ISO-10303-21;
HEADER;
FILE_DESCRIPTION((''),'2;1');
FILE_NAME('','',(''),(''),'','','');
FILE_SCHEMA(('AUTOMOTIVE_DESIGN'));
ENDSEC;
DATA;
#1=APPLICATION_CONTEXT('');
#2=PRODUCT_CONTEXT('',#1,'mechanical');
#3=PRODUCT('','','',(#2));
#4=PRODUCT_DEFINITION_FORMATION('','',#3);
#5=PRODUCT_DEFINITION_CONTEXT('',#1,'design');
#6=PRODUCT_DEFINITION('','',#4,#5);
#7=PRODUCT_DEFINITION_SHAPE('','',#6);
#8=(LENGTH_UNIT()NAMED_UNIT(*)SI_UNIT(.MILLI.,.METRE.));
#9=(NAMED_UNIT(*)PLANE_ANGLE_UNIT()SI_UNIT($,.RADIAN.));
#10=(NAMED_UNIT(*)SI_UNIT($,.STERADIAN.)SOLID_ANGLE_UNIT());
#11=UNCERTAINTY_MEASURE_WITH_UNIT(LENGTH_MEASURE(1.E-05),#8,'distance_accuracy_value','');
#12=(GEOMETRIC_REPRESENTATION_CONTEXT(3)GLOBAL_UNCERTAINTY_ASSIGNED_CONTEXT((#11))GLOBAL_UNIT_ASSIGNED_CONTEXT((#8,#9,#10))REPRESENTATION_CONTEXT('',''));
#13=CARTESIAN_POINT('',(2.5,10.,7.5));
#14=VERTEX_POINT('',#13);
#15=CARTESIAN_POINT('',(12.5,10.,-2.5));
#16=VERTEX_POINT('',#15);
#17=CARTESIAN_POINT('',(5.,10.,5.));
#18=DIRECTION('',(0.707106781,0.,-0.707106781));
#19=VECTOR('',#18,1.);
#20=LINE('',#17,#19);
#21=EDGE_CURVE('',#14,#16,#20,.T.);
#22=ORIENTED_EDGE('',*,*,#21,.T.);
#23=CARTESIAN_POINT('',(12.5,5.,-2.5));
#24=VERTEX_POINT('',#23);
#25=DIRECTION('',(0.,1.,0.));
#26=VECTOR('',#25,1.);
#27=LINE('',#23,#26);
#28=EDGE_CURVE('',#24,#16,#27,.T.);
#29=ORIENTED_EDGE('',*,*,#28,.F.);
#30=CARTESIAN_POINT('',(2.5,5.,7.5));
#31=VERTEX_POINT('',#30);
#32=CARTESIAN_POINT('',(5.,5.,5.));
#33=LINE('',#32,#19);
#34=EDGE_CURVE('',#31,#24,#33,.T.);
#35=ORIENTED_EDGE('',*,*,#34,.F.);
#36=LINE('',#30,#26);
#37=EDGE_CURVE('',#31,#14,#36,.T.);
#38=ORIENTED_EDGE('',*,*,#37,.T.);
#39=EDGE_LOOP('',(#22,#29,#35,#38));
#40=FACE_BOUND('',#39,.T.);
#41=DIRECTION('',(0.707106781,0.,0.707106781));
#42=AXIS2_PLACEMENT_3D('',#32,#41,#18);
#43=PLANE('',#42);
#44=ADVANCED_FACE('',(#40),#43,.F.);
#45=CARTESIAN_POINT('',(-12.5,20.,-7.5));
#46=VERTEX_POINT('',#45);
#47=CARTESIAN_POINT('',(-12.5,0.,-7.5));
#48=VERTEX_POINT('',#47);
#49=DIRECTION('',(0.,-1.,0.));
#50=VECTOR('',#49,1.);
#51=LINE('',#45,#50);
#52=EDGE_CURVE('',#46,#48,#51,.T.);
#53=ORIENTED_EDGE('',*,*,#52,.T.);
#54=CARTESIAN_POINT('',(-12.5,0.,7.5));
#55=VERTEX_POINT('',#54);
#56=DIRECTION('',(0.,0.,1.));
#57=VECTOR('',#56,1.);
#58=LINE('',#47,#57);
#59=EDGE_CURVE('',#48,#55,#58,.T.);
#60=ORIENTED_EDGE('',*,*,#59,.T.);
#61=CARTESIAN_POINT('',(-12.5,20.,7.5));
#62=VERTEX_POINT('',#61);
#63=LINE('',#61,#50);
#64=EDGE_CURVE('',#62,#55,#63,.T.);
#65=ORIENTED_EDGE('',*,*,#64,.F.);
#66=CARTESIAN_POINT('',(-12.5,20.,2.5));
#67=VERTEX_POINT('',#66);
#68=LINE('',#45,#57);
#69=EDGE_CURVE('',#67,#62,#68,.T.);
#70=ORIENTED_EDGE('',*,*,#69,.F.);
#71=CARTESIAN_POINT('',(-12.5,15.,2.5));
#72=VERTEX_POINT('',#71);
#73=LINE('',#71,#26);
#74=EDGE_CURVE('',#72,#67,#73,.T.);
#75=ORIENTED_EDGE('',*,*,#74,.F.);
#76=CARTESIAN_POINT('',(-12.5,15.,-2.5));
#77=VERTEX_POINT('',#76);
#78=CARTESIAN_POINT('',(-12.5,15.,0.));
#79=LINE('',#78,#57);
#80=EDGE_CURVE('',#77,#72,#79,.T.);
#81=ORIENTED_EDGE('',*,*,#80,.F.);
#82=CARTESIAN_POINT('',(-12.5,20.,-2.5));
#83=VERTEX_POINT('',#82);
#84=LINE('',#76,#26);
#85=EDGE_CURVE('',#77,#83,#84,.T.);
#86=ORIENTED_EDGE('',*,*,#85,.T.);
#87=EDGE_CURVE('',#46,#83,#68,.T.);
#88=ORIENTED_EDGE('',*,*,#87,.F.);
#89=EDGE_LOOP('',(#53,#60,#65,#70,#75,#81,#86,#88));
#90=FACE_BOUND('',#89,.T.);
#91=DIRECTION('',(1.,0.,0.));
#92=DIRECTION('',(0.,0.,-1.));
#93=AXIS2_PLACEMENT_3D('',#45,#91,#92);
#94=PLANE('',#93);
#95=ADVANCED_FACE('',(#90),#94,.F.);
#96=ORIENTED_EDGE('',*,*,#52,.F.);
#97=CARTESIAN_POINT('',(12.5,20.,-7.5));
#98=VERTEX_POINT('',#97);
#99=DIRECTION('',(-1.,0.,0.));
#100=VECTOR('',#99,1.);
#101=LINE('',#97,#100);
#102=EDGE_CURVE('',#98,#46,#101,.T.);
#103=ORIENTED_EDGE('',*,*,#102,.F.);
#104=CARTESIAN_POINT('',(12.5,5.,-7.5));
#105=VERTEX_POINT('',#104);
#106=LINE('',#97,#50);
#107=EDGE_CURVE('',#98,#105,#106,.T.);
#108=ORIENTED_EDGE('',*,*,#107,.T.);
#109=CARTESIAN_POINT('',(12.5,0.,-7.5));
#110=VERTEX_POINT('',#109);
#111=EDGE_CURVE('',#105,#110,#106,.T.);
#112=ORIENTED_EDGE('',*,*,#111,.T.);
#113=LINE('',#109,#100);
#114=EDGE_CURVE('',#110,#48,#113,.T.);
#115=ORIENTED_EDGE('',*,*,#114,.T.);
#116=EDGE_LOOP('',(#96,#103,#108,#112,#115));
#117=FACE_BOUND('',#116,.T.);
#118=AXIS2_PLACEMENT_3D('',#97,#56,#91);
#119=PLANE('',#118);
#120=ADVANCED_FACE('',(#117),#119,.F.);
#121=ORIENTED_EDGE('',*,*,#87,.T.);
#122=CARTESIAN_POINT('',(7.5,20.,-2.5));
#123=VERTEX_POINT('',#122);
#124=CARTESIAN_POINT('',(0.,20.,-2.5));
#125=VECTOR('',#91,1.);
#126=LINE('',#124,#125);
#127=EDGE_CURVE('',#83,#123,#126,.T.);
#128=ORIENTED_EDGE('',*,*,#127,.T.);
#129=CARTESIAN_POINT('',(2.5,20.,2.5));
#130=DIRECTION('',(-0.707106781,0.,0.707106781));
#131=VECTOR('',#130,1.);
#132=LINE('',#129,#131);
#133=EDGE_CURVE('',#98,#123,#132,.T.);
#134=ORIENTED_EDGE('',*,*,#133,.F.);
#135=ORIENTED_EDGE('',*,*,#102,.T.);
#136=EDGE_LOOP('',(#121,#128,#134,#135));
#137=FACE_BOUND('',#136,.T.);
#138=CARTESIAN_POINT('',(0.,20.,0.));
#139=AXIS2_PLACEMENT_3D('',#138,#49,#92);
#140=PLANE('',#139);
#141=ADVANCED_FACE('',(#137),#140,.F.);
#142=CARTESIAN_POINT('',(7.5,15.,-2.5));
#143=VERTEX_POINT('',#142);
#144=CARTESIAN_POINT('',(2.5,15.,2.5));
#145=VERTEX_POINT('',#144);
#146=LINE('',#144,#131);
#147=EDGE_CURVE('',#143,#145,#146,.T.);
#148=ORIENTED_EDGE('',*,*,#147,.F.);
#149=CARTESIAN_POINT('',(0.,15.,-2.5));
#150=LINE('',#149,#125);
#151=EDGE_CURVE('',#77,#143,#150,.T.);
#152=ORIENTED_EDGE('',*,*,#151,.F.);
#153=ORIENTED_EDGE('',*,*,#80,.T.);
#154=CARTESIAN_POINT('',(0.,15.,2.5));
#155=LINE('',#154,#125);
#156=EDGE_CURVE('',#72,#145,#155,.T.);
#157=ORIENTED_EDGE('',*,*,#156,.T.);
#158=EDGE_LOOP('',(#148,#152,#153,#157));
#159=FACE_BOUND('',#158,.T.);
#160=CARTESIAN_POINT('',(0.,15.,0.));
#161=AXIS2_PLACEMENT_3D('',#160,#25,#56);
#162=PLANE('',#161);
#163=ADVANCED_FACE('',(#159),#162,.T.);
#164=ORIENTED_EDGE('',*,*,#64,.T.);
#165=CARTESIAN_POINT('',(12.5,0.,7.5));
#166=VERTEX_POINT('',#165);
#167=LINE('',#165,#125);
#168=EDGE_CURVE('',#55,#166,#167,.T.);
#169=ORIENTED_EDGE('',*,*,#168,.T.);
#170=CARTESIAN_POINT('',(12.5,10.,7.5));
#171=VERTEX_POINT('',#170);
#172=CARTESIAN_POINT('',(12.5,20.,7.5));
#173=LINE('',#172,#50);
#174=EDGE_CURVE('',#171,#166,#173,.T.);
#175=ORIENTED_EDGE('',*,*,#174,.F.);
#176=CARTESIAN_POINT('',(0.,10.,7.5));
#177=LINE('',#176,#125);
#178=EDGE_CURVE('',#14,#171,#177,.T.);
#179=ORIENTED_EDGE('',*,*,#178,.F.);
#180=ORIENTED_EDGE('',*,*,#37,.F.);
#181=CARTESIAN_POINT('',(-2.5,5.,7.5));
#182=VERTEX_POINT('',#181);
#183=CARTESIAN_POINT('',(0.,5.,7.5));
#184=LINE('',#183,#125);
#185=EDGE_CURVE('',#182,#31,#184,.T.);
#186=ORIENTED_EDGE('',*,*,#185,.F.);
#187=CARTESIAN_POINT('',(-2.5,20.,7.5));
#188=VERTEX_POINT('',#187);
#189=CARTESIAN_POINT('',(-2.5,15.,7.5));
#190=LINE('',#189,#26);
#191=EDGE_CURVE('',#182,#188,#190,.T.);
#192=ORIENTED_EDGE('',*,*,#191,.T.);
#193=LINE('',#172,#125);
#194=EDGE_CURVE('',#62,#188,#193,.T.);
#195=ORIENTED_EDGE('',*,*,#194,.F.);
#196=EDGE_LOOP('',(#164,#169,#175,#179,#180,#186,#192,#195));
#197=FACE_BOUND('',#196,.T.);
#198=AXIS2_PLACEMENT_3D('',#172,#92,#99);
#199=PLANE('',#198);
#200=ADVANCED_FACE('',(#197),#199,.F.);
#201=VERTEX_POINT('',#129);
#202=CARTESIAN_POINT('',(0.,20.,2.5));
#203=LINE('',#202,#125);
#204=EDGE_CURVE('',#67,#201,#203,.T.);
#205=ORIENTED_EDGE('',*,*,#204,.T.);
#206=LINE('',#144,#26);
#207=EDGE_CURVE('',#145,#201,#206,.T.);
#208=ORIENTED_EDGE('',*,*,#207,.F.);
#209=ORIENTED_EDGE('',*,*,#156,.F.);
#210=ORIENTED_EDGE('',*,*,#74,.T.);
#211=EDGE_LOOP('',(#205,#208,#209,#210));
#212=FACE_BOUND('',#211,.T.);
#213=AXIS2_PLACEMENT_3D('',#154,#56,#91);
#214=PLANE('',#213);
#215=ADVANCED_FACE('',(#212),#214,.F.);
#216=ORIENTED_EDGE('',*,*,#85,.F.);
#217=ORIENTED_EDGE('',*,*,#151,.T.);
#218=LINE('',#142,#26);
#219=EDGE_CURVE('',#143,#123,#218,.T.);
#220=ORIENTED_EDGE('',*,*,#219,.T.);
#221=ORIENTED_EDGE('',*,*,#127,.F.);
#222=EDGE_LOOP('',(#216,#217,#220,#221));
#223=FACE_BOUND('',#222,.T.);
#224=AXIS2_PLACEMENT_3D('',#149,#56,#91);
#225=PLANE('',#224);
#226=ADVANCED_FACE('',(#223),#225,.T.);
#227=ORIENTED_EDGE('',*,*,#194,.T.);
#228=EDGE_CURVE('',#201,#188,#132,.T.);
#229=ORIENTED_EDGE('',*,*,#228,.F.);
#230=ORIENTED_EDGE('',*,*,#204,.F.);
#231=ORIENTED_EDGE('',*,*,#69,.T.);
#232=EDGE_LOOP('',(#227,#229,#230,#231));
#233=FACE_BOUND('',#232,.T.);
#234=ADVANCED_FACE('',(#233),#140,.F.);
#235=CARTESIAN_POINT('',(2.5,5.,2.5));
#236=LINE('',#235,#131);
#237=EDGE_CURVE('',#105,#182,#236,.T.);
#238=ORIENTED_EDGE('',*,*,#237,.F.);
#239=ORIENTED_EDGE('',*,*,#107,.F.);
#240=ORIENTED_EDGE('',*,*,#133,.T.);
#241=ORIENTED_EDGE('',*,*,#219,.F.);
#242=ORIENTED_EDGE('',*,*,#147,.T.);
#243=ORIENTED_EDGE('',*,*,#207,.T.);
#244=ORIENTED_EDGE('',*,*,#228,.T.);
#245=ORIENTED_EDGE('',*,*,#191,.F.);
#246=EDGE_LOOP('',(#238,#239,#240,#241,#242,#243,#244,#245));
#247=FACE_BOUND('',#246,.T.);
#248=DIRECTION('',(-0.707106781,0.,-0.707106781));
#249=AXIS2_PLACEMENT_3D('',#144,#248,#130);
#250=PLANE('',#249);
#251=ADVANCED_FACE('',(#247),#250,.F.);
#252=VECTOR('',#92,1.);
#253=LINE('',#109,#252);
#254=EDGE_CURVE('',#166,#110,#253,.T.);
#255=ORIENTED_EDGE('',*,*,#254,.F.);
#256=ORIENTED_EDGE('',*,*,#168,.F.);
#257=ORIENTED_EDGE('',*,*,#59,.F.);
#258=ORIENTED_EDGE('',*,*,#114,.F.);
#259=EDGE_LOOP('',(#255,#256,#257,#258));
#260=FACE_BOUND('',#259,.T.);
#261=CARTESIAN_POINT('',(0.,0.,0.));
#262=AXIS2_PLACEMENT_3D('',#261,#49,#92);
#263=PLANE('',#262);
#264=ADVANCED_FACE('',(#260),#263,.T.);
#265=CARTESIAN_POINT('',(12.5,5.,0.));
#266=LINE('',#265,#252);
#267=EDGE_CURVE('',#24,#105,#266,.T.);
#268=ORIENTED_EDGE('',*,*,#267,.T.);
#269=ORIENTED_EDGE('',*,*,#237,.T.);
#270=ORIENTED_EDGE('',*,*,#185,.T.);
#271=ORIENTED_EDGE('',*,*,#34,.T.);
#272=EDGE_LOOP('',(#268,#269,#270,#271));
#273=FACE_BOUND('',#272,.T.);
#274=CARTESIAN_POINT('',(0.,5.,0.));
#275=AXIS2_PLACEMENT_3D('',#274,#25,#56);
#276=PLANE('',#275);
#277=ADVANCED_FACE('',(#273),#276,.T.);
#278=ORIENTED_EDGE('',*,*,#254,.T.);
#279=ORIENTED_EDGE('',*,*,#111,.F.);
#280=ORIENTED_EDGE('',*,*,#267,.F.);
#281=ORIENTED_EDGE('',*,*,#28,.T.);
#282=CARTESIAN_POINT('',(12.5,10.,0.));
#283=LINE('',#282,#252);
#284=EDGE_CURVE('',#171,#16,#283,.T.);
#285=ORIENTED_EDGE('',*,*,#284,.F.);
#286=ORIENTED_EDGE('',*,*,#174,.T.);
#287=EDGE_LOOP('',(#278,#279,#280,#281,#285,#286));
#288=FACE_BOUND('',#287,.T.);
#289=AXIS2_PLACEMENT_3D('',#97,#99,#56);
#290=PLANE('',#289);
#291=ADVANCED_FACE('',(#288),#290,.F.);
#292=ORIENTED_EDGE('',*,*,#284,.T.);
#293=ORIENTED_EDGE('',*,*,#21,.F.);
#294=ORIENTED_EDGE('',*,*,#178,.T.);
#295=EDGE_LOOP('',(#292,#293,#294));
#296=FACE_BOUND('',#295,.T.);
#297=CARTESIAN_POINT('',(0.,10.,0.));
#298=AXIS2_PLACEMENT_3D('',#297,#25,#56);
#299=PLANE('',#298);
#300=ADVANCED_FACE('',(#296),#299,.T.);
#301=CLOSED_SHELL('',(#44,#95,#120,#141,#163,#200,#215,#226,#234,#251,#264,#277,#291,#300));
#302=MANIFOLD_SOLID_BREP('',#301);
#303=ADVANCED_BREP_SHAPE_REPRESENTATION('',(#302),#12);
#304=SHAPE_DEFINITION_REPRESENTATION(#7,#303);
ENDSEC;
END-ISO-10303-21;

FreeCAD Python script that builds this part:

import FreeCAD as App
import Part
import Sketcher


def add_polygon(sketch, points):
    """Adds a closed chain of lines whose ends are joined by coincident constraints."""
    first, n = sketch.GeometryCount, len(points)
    for a, b in zip(points, points[1:] + points[:1]):
        sketch.addGeometry(Part.LineSegment(App.Vector(*a, 0), App.Vector(*b, 0)), False)
    for i in range(n):
        sketch.addConstraint(Sketcher.Constraint("Coincident", first + i, 2, first + (i + 1) % n, 1))

doc = App.newDocument("Part")
params = doc.addObject("Spreadsheet::Sheet", "Params")
for row, (alias, value) in enumerate([
    ("sketch1_width", "25 mm"),
    ("sketch1_height", "15 mm"),
    ("pad1_length", "20 mm"),
    ("sketch2_width", "15 mm"),
    ("sketch2_width2", "20 mm"),
    ("sketch2_height", "5 mm"),
    ("pocket1_length", "5 mm"),
    ("sketch3_width", "5 mm"),
    ("pocket2_length", "15 mm"),
    ("sketch4_width", "10 mm"),
    ("pocket3_length", "10 mm"),
], start=1):
    params.set(f"A{row}", alias)
    params.set(f"B{row}", "=" + value)
    params.setAlias(f"B{row}", alias)

body = doc.addObject("PartDesign::Body", "Body")

# Sketch on XZ plane
sketch1 = body.newObject("Sketcher::SketchObject", "Sketch")
sketch1.AttachmentSupport = (doc.getObject("XZ_Plane"), [""])
sketch1.MapMode = "FlatFace"
add_polygon(sketch1, [(-12, -8), (-12, 8), (12, 8), (12, -8)])  # lines 0-3
sketch1.addConstraint(Sketcher.Constraint("Vertical", 0))
sketch1.addConstraint(Sketcher.Constraint("Horizontal", 1))
sketch1.addConstraint(Sketcher.Constraint("Vertical", 2))
sketch1.addConstraint(Sketcher.Constraint("Horizontal", 3))
sketch1.addConstraint(Sketcher.Constraint("Symmetric", 0, 2, 2, 2, -1, 1))
sketch1.addConstraint(Sketcher.Constraint("DistanceX", 1, 1, 1, 2, 25.0))
sketch1.addConstraint(Sketcher.Constraint("DistanceY", 0, 1, 0, 2, 15.0))
sketch1.setExpression("Constraints[9]", "Params.sketch1_width")
sketch1.setExpression("Constraints[10]", "Params.sketch1_height")
pad1 = body.newObject("PartDesign::Pad", "Pad")
pad1.Profile = sketch1
pad1.setExpression("Length", "Params.pad1_length")
pad1.Reversed = True

# Sketch on XZ plane
sketch2 = body.newObject("Sketcher::SketchObject", "Sketch001")
sketch2.AttachmentSupport = (doc.getObject("XZ_Plane"), [""])
sketch2.MapMode = "FlatFace"
sketch2.AttachmentOffset = App.Placement(App.Vector(0, 0, -20), App.Rotation())
add_polygon(sketch2, [(-12, -2), (-12, 2), (2, 2), (-2, 8), (12, 8), (12, -8), (8, -2)])  # lines 0-6
sketch2.addConstraint(Sketcher.Constraint("Vertical", 0))
sketch2.addConstraint(Sketcher.Constraint("Horizontal", 1))
sketch2.addConstraint(Sketcher.Constraint("Horizontal", 3))
sketch2.addConstraint(Sketcher.Constraint("Vertical", 4))
sketch2.addConstraint(Sketcher.Constraint("Horizontal", 6))
sketch2.addConstraint(Sketcher.Constraint("Parallel", 2, 5))
sketch2.addConstraint(Sketcher.Constraint("Equal", 1, 3))
sketch2.addConstraint(Sketcher.Constraint("Equal", 3, 4))
sketch2.addConstraint(Sketcher.Constraint("Equal", 2, 5))
sketch2.addConstraint(Sketcher.Constraint("DistanceX", 1, 1, 1, 2, 15.0))
sketch2.addConstraint(Sketcher.Constraint("DistanceX", 6, 2, 6, 1, 20.0))
sketch2.addConstraint(Sketcher.Constraint("DistanceY", 0, 1, 0, 2, 5.0))
sketch2.addConstraint(Sketcher.Constraint("DistanceX", 0, 2, -1, 1, 12.5))
sketch2.addConstraint(Sketcher.Constraint("DistanceY", -1, 1, 0, 2, 2.5))
sketch2.setExpression("Constraints[16]", "Params.sketch2_width")
sketch2.setExpression("Constraints[17]", "Params.sketch2_width2")
sketch2.setExpression("Constraints[18]", "Params.sketch2_height")
pocket1 = body.newObject("PartDesign::Pocket", "Pocket")
pocket1.Profile = sketch2
pocket1.setExpression("Length", "Params.pocket1_length")
pocket1.Reversed = True

# Sketch on XZ plane
sketch3 = body.newObject("Sketcher::SketchObject", "Sketch002")
sketch3.AttachmentSupport = (doc.getObject("XZ_Plane"), [""])
sketch3.MapMode = "FlatFace"
sketch3.AttachmentOffset = App.Placement(App.Vector(0, 0, -20), App.Rotation())
add_polygon(sketch3, [(-2, 8), (2, 8), (12, -2), (12, -8)])  # lines 0-3
sketch3.addConstraint(Sketcher.Constraint("Horizontal", 0))
sketch3.addConstraint(Sketcher.Constraint("Vertical", 2))
sketch3.addConstraint(Sketcher.Constraint("Parallel", 1, 3))
sketch3.addConstraint(Sketcher.Constraint("Equal", 0, 2))
sketch3.addConstraint(Sketcher.Constraint("DistanceX", 0, 1, 0, 2, 5.0))
sketch3.addConstraint(Sketcher.Constraint("DistanceX", 0, 2, 1, 2, 10.0))
sketch3.addConstraint(Sketcher.Constraint("DistanceX", -1, 1, 0, 2, 2.5))
sketch3.addConstraint(Sketcher.Constraint("DistanceY", -1, 1, 0, 2, 7.5))
sketch3.setExpression("Constraints[8]", "Params.sketch3_width")
pocket2 = body.newObject("PartDesign::Pocket", "Pocket001")
pocket2.Profile = sketch3
pocket2.setExpression("Length", "Params.pocket2_length")
pocket2.Reversed = True

# Sketch on XZ plane
sketch4 = body.newObject("Sketcher::SketchObject", "Sketch003")
sketch4.AttachmentSupport = (doc.getObject("XZ_Plane"), [""])
sketch4.MapMode = "FlatFace"
sketch4.AttachmentOffset = App.Placement(App.Vector(0, 0, -20), App.Rotation())
add_polygon(sketch4, [(12, -2), (2, 8), (12, 8)])  # lines 0-2
sketch4.addConstraint(Sketcher.Constraint("Horizontal", 1))
sketch4.addConstraint(Sketcher.Constraint("Vertical", 2))
sketch4.addConstraint(Sketcher.Constraint("Equal", 1, 2))
sketch4.addConstraint(Sketcher.Constraint("DistanceX", 1, 1, 1, 2, 10.0))
sketch4.addConstraint(Sketcher.Constraint("DistanceX", -1, 1, 0, 2, 2.5))
sketch4.addConstraint(Sketcher.Constraint("DistanceY", -1, 1, 0, 2, 7.5))
sketch4.setExpression("Constraints[6]", "Params.sketch4_width")
pocket3 = body.newObject("PartDesign::Pocket", "Pocket002")
pocket3.Profile = sketch4
pocket3.setExpression("Length", "Params.pocket3_length")
pocket3.Reversed = True

doc.recompute()
